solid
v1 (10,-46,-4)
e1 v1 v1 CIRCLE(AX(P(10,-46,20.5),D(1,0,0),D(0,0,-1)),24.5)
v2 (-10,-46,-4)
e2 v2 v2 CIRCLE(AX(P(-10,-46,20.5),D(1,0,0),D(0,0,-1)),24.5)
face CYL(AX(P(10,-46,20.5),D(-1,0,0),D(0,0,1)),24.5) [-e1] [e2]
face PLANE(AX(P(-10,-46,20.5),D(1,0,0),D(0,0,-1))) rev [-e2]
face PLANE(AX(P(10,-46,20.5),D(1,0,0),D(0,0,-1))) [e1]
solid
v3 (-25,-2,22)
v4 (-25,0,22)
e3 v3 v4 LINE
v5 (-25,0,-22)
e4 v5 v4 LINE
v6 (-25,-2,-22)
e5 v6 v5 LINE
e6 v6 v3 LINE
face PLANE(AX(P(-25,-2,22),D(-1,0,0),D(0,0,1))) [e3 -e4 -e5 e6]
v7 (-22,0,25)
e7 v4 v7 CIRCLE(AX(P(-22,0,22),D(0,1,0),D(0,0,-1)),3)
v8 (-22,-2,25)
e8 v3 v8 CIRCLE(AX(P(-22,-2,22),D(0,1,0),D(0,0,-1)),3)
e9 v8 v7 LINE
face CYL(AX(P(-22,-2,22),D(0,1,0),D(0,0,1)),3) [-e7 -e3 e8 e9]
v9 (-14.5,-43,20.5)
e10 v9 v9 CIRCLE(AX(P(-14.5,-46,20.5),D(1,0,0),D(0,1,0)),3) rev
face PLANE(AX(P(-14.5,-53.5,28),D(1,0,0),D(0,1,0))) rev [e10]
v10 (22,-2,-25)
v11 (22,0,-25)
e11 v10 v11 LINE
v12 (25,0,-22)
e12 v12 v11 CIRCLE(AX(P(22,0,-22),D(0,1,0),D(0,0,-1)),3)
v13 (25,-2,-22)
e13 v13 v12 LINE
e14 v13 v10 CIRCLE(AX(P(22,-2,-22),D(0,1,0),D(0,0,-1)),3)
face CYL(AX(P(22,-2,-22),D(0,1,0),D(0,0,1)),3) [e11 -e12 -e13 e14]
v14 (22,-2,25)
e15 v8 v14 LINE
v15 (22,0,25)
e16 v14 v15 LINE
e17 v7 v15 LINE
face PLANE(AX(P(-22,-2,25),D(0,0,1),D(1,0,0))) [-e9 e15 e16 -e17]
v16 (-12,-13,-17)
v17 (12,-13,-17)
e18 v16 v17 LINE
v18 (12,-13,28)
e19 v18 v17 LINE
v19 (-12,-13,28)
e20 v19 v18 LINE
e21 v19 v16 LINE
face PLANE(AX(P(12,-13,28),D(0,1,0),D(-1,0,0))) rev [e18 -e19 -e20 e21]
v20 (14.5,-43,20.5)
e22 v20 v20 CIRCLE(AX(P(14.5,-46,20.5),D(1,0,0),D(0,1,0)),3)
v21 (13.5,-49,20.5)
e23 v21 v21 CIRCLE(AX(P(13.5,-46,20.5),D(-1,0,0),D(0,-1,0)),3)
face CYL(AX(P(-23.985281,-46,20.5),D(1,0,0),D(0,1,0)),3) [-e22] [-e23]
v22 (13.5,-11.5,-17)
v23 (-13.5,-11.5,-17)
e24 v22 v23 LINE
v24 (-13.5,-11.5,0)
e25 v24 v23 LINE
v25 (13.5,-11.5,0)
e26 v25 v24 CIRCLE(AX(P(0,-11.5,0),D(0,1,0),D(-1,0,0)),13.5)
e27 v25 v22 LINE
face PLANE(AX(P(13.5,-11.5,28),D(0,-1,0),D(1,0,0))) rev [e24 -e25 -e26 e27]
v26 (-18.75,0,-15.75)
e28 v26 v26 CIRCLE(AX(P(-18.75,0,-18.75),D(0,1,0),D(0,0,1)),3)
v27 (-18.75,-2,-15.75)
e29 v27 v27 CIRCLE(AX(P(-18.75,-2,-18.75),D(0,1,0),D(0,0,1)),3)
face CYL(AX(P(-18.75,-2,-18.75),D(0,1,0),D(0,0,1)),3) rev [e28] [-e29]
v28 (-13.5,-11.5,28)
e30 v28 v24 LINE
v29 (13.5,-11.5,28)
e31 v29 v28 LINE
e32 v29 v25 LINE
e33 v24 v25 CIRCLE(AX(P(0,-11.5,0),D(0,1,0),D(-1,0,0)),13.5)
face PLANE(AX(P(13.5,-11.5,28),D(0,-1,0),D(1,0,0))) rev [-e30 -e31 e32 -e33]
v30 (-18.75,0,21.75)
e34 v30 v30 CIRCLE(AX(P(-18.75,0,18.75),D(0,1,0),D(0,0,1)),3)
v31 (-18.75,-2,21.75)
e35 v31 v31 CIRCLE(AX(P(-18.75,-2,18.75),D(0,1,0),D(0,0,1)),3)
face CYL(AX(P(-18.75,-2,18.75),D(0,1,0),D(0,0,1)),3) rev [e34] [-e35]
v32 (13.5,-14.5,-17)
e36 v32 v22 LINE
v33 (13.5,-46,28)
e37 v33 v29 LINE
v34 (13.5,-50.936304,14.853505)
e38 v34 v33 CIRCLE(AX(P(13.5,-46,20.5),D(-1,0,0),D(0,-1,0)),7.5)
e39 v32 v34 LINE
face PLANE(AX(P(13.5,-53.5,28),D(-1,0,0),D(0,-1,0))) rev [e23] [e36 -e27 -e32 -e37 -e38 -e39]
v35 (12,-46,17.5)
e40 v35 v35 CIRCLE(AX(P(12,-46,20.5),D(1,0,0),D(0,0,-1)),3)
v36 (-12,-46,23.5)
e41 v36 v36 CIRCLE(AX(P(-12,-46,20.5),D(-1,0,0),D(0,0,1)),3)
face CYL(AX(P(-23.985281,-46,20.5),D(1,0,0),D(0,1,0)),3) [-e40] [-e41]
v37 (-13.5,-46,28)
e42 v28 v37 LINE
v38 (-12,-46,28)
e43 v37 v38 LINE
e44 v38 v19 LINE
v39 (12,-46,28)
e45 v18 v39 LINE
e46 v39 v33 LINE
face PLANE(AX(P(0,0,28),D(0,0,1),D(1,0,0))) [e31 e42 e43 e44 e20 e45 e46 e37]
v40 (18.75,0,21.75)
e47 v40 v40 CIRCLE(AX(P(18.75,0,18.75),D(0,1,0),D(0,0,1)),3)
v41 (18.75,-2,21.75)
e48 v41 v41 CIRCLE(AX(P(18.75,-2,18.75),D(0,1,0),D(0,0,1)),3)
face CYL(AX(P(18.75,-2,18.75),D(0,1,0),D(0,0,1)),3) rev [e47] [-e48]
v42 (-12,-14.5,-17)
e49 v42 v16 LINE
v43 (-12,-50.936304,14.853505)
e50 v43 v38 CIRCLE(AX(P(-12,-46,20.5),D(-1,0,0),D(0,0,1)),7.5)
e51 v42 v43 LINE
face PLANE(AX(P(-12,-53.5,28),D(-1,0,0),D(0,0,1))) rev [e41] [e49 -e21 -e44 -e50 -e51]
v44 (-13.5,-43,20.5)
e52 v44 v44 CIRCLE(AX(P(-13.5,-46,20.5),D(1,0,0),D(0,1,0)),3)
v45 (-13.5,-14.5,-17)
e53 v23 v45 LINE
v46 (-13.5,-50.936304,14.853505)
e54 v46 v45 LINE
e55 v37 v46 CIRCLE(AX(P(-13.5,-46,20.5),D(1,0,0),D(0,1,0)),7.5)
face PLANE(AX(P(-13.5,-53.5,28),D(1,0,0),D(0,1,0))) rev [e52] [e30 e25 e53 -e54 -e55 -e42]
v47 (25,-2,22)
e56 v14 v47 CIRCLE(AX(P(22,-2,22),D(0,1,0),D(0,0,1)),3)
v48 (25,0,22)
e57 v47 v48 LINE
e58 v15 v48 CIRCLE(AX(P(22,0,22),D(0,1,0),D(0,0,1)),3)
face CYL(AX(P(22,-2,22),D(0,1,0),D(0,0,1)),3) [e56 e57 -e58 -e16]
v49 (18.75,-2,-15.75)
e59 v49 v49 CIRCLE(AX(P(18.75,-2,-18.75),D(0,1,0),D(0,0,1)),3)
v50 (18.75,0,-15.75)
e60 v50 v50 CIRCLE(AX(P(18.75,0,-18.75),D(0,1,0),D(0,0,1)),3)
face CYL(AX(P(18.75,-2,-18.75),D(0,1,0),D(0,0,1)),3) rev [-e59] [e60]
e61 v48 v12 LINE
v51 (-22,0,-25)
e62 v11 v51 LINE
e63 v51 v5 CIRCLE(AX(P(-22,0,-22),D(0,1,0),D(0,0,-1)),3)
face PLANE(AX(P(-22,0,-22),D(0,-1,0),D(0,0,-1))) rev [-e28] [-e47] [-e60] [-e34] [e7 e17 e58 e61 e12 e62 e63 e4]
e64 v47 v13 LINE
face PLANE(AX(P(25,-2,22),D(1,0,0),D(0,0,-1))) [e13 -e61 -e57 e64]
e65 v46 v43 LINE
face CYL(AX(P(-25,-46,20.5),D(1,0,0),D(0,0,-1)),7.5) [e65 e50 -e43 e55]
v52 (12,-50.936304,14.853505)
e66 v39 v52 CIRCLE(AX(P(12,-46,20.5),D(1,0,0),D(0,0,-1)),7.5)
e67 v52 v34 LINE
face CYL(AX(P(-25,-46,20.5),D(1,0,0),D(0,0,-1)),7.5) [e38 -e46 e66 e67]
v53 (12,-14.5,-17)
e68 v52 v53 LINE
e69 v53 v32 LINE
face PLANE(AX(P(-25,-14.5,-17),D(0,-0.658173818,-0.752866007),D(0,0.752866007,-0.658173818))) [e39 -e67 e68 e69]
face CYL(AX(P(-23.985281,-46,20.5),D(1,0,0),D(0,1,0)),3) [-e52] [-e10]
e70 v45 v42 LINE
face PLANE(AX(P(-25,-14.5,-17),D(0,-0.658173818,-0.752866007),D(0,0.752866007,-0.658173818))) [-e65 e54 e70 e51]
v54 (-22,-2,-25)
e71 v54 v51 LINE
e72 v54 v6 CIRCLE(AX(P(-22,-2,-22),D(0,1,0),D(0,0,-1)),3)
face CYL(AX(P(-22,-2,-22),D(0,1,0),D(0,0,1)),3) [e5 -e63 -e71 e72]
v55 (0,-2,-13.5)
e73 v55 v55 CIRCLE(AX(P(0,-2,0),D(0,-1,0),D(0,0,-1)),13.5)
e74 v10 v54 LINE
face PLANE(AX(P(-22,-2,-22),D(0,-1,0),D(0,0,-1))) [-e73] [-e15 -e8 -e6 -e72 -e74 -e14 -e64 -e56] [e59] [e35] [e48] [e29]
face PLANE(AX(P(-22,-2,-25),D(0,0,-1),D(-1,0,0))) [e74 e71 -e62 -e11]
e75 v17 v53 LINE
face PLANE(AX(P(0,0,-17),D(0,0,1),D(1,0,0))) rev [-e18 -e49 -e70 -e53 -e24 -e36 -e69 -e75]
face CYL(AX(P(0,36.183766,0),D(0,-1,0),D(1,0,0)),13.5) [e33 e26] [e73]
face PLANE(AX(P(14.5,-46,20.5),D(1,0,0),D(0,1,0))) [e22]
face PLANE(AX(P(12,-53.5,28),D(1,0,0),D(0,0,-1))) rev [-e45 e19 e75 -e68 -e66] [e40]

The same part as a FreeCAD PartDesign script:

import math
import FreeCAD as App
import Part
import Sketcher

doc = App.newDocument("Part")
body = doc.addObject("PartDesign::Body", "Body")

# Sketch on XZ plane
sketch1 = body.newObject("Sketcher::SketchObject", "Sketch")
sketch1.AttachmentSupport = (doc.getObject("XZ_Plane"), [""])
sketch1.MapMode = "FlatFace"
sketch1.addGeometry(Part.LineSegment(App.Vector(-22, 25, 0), App.Vector(22, 25, 0)), False)
sketch1.addGeometry(Part.ArcOfCircle(Part.Circle(App.Vector(22, 22, 0), App.Vector(0, 0, 1), 3), math.radians(0), math.radians(90)), False)
sketch1.addGeometry(Part.LineSegment(App.Vector(25, 22, 0), App.Vector(25, -22, 0)), False)
sketch1.addGeometry(Part.ArcOfCircle(Part.Circle(App.Vector(22, -22, 0), App.Vector(0, 0, 1), 3), math.radians(-90), math.radians(0)), False)
sketch1.addGeometry(Part.LineSegment(App.Vector(22, -25, 0), App.Vector(-22, -25, 0)), False)
sketch1.addGeometry(Part.ArcOfCircle(Part.Circle(App.Vector(-22, -22, 0), App.Vector(0, 0, 1), 3), math.radians(180), math.radians(270)), False)
sketch1.addGeometry(Part.LineSegment(App.Vector(-25, -22, 0), App.Vector(-25, 22, 0)), False)
sketch1.addGeometry(Part.ArcOfCircle(Part.Circle(App.Vector(-22, 22, 0), App.Vector(0, 0, 1), 3), math.radians(90), math.radians(180)), False)
sketch1.addGeometry(Part.Circle(App.Vector(-18.75, 18.75, 0), App.Vector(0, 0, 1), 3), False)
sketch1.addGeometry(Part.Circle(App.Vector(18.75, 18.75, 0), App.Vector(0, 0, 1), 3), False)
sketch1.addGeometry(Part.Circle(App.Vector(-18.75, -18.75, 0), App.Vector(0, 0, 1), 3), False)
sketch1.addGeometry(Part.Circle(App.Vector(18.75, -18.75, 0), App.Vector(0, 0, 1), 3), False)
sketch1.addConstraint(Sketcher.Constraint("Tangent", 0, 2, 1, 2))
sketch1.addConstraint(Sketcher.Constraint("Tangent", 1, 1, 2, 1))
sketch1.addConstraint(Sketcher.Constraint("Tangent", 2, 2, 3, 2))
sketch1.addConstraint(Sketcher.Constraint("Tangent", 3, 1, 4, 1))
sketch1.addConstraint(Sketcher.Constraint("Tangent", 4, 2, 5, 2))
sketch1.addConstraint(Sketcher.Constraint("Tangent", 5, 1, 6, 1))
sketch1.addConstraint(Sketcher.Constraint("Tangent", 6, 2, 7, 2))
sketch1.addConstraint(Sketcher.Constraint("Tangent", 7, 1, 0, 1))
sketch1.addConstraint(Sketcher.Constraint("Horizontal", 0))
sketch1.addConstraint(Sketcher.Constraint("Vertical", 2))
sketch1.addConstraint(Sketcher.Constraint("Horizontal", 4))
sketch1.addConstraint(Sketcher.Constraint("Vertical", 6))
sketch1.addConstraint(Sketcher.Constraint("Equal", 1, 3))
sketch1.addConstraint(Sketcher.Constraint("Equal", 3, 5))
sketch1.addConstraint(Sketcher.Constraint("Equal", 5, 7))
sketch1.addConstraint(Sketcher.Constraint("Equal", 7, 8))
sketch1.addConstraint(Sketcher.Constraint("Equal", 8, 9))
sketch1.addConstraint(Sketcher.Constraint("Equal", 9, 10))
sketch1.addConstraint(Sketcher.Constraint("Equal", 10, 11))
sketch1.addConstraint(Sketcher.Constraint("Symmetric", 1, 3, 5, 3, -1, 1))
sketch1.addConstraint(Sketcher.Constraint("Symmetric", 9, 3, 10, 3, -1, 1))
sketch1.addConstraint(Sketcher.Constraint("Symmetric", 8, 3, 11, 3, -1, 1))
sketch1.addConstraint(Sketcher.Constraint("Symmetric", 8, 3, 9, 3, -2))
sketch1.addConstraint(Sketcher.Constraint("Equal", 4, 2))
sketch1.addConstraint(Sketcher.Constraint("Diameter", 8, 6.0))
sketch1.addConstraint(Sketcher.Constraint("DistanceX", 0, 1, 0, 2, 44.0))
sketch1.addConstraint(Sketcher.Constraint("DistanceX", 8, 3, 9, 3, 37.5))
sketch1.addConstraint(Sketcher.Constraint("DistanceY", 10, 3, 8, 3, 37.5))
pad1 = body.newObject("PartDesign::Pad", "Pad")
pad1.Profile = sketch1
pad1.Length = 2
body2 = doc.addObject("PartDesign::Body", "Body001")

# Sketch on XY plane
sketch2 = body2.newObject("Sketcher::SketchObject", "Sketch001")
sketch2.AttachmentSupport = (doc.getObject("XY_Plane001"), [""])
sketch2.MapMode = "FlatFace"
sketch2.addGeometry(Part.LineSegment(App.Vector(13.5, -53.5, 0), App.Vector(13.5, -11.5, 0)), False)
sketch2.addGeometry(Part.LineSegment(App.Vector(13.5, -11.5, 0), App.Vector(-13.5, -11.5, 0)), False)
sketch2.addGeometry(Part.LineSegment(App.Vector(-13.5, -11.5, 0), App.Vector(-13.5, -53.5, 0)), False)
sketch2.addGeometry(Part.LineSegment(App.Vector(-13.5, -53.5, 0), App.Vector(-12, -53.5, 0)), False)
sketch2.addGeometry(Part.LineSegment(App.Vector(-12, -53.5, 0), App.Vector(-12, -13, 0)), False)
sketch2.addGeometry(Part.LineSegment(App.Vector(-12, -13, 0), App.Vector(12, -13, 0)), False)
sketch2.addGeometry(Part.LineSegment(App.Vector(12, -13, 0), App.Vector(12, -53.5, 0)), False)
sketch2.addGeometry(Part.LineSegment(App.Vector(12, -53.5, 0), App.Vector(13.5, -53.5, 0)), False)
sketch2.addConstraint(Sketcher.Constraint("Coincident", 0, 2, 1, 1))
sketch2.addConstraint(Sketcher.Constraint("Coincident", 1, 2, 2, 1))
sketch2.addConstraint(Sketcher.Constraint("Coincident", 2, 2, 3, 1))
sketch2.addConstraint(Sketcher.Constraint("Coincident", 3, 2, 4, 1))
sketch2.addConstraint(Sketcher.Constraint("Coincident", 4, 2, 5, 1))
sketch2.addConstraint(Sketcher.Constraint("Coincident", 5, 2, 6, 1))
sketch2.addConstraint(Sketcher.Constraint("Coincident", 6, 2, 7, 1))
sketch2.addConstraint(Sketcher.Constraint("Coincident", 7, 2, 0, 1))
sketch2.addConstraint(Sketcher.Constraint("Vertical", 0))
sketch2.addConstraint(Sketcher.Constraint("Horizontal", 1))
sketch2.addConstraint(Sketcher.Constraint("Vertical", 2))
sketch2.addConstraint(Sketcher.Constraint("Horizontal", 3))
sketch2.addConstraint(Sketcher.Constraint("Vertical", 4))
sketch2.addConstraint(Sketcher.Constraint("Horizontal", 5))
sketch2.addConstraint(Sketcher.Constraint("Vertical", 6))
sketch2.addConstraint(Sketcher.Constraint("Horizontal", 7))
sketch2.addConstraint(Sketcher.Constraint("Symmetric", 3, 2, 6, 2, -2))
sketch2.addConstraint(Sketcher.Constraint("Equal", 3, 7))
sketch2.addConstraint(Sketcher.Constraint("DistanceX", 1, 2, 1, 1, 27.0))
sketch2.addConstraint(Sketcher.Constraint("DistanceX", 5, 1, 5, 2, 24.0))
sketch2.addConstraint(Sketcher.Constraint("DistanceY", 0, 1, 0, 2, 42.0))
sketch2.addConstraint(Sketcher.Constraint("DistanceY", 4, 1, 4, 2, 40.5))
sketch2.addConstraint(Sketcher.Constraint("DistanceY", 4, 2, -1, 1, 13.0))
pad2 = body2.newObject("PartDesign::Pad", "Pad001")
pad2.Profile = sketch2
pad2.Type = "TwoLengths"
pad2.Length = 28
pad2.Length2 = 17

# Sketch on YZ plane
sketch3 = body2.newObject("Sketcher::SketchObject", "Sketch002")
sketch3.AttachmentSupport = (doc.getObject("YZ_Plane001"), [""])
sketch3.MapMode = "FlatFace"
sketch3.addGeometry(Part.LineSegment(App.Vector(10.039, 38.039, 0), App.Vector(-63.539, 38.039, 0)), False)
sketch3.addGeometry(Part.LineSegment(App.Vector(-63.539, 38.039, 0), App.Vector(-63.539, -35.039, 0)), False)
sketch3.addGeometry(Part.LineSegment(App.Vector(-63.539, -35.039, 0), App.Vector(10.039, -35.039, 0)), False)
sketch3.addGeometry(Part.LineSegment(App.Vector(10.039, -35.039, 0), App.Vector(10.039, 38.039, 0)), False)
sketch3.addGeometry(Part.LineSegment(App.Vector(-11.5, 28, 0), App.Vector(-11.5, -17, 0)), False)
sketch3.addGeometry(Part.LineSegment(App.Vector(-11.5, -17, 0), App.Vector(-14.5, -17, 0)), False)
sketch3.addGeometry(Part.LineSegment(App.Vector(-14.5, -17, 0), App.Vector(-50.936304, 14.853505, 0)), False)
sketch3.addGeometry(Part.ArcOfCircle(Part.Circle(App.Vector(-46, 20.5, 0), App.Vector(0, 0, 1), 7.5), math.radians(90), math.radians(228.839254)), False)
sketch3.addGeometry(Part.LineSegment(App.Vector(-46, 28, 0), App.Vector(-11.5, 28, 0)), False)
sketch3.addConstraint(Sketcher.Constraint("Coincident", 0, 2, 1, 1))
sketch3.addConstraint(Sketcher.Constraint("Coincident", 1, 2, 2, 1))
sketch3.addConstraint(Sketcher.Constraint("Coincident", 2, 2, 3, 1))
sketch3.addConstraint(Sketcher.Constraint("Coincident", 3, 2, 0, 1))
sketch3.addConstraint(Sketcher.Constraint("Coincident", 4, 2, 5, 1))
sketch3.addConstraint(Sketcher.Constraint("Coincident", 5, 2, 6, 1))
sketch3.addConstraint(Sketcher.Constraint("Tangent", 6, 2, 7, 2))
sketch3.addConstraint(Sketcher.Constraint("Tangent", 7, 1, 8, 1))
sketch3.addConstraint(Sketcher.Constraint("Coincident", 8, 2, 4, 1))
sketch3.addConstraint(Sketcher.Constraint("Horizontal", 0))
sketch3.addConstraint(Sketcher.Constraint("Vertical", 1))
sketch3.addConstraint(Sketcher.Constraint("Horizontal", 2))
sketch3.addConstraint(Sketcher.Constraint("Vertical", 3))
sketch3.addConstraint(Sketcher.Constraint("Vertical", 4))
sketch3.addConstraint(Sketcher.Constraint("Horizontal", 5))
sketch3.addConstraint(Sketcher.Constraint("Horizontal", 8))
sketch3.addConstraint(Sketcher.Constraint("Radius", 7, 7.5))
sketch3.addConstraint(Sketcher.Constraint("DistanceX", 5, 2, 5, 1, 3.0))
sketch3.addConstraint(Sketcher.Constraint("DistanceY", 4, 2, 4, 1, 45.0))
sketch3.addConstraint(Sketcher.Constraint("DistanceX", 8, 1, 8, 2, 34.5))
sketch3.addConstraint(Sketcher.Constraint("DistanceX", 7, 3, -1, 1, 46.0))
sketch3.addConstraint(Sketcher.Constraint("DistanceY", 4, 2, -1, 1, 17.0))
sketch3.addConstraint(Sketcher.Constraint("DistanceX", 0, 2, 0, 1, 73.578))
sketch3.addConstraint(Sketcher.Constraint("DistanceY", 1, 2, 1, 1, 73.078))
sketch3.addConstraint(Sketcher.Constraint("DistanceX", 0, 2, -1, 1, 63.539))
sketch3.addConstraint(Sketcher.Constraint("DistanceY", -1, 1, 0, 2, 38.039))
pocket1 = body2.newObject("PartDesign::Pocket", "Pocket")
pocket1.Profile = sketch3
pocket1.Type = "ThroughAll"
pocket1.Midplane = True

# Sketch on YZ plane
sketch4 = body2.newObject("Sketcher::SketchObject", "Sketch003")
sketch4.AttachmentSupport = (doc.getObject("YZ_Plane001"), [""])
sketch4.MapMode = "FlatFace"
sketch4.AttachmentOffset = App.Placement(App.Vector(0, 0, 13.5), App.Rotation())
sketch4.addGeometry(Part.Circle(App.Vector(-46, 20.5, 0), App.Vector(0, 0, 1), 3), False)
sketch4.addConstraint(Sketcher.Constraint("Diameter", 0, 6.0))
sketch4.addConstraint(Sketcher.Constraint("DistanceX", 0, 3, -1, 1, 46.0))
sketch4.addConstraint(Sketcher.Constraint("DistanceY", -1, 1, 0, 3, 20.5))
pad3 = body2.newObject("PartDesign::Pad", "Pad002")
pad3.Profile = sketch4
pad3.Type = "TwoLengths"
pad3.Length = 1
pad3.Length2 = 28
body3 = doc.addObject("PartDesign::Body", "Body002")

# Sketch on YZ plane
sketch5 = body3.newObject("Sketcher::SketchObject", "Sketch004")
sketch5.AttachmentSupport = (doc.getObject("YZ_Plane002"), [""])
sketch5.MapMode = "FlatFace"
sketch5.addGeometry(Part.Circle(App.Vector(-46, 20.5, 0), App.Vector(0, 0, 1), 24.5), False)
sketch5.addConstraint(Sketcher.Constraint("Diameter", 0, 49.0))
sketch5.addConstraint(Sketcher.Constraint("DistanceX", 0, 3, -1, 1, 46.0))
sketch5.addConstraint(Sketcher.Constraint("DistanceY", -1, 1, 0, 3, 20.5))
pad4 = body3.newObject("PartDesign::Pad", "Pad003")
pad4.Profile = sketch5
pad4.Length = 20
pad4.Midplane = True
body.AllowCompound = True
doc.recompute()

boolean = body.newObject("PartDesign::Boolean", "Boolean")
boolean.Type = "Fuse"
boolean.addObjects([body2])

# Sketch on XZ plane
sketch6 = body.newObject("Sketcher::SketchObject", "Sketch005")
sketch6.AttachmentSupport = (doc.getObject("XZ_Plane"), [""])
sketch6.MapMode = "FlatFace"
sketch6.AttachmentOffset = App.Placement(App.Vector(0, 0, 11.5), App.Rotation())
sketch6.addGeometry(Part.Circle(App.Vector(0, 0, 0), App.Vector(0, 0, 1), 13.5), False)
sketch6.addConstraint(Sketcher.Constraint("Coincident", 0, 3, -1, 1))
sketch6.addConstraint(Sketcher.Constraint("Diameter", 0, 27.0))
pad5 = body.newObject("PartDesign::Pad", "Pad004")
pad5.Profile = sketch6
pad5.Length = 9.5
pad5.Reversed = True

doc.recompute()
